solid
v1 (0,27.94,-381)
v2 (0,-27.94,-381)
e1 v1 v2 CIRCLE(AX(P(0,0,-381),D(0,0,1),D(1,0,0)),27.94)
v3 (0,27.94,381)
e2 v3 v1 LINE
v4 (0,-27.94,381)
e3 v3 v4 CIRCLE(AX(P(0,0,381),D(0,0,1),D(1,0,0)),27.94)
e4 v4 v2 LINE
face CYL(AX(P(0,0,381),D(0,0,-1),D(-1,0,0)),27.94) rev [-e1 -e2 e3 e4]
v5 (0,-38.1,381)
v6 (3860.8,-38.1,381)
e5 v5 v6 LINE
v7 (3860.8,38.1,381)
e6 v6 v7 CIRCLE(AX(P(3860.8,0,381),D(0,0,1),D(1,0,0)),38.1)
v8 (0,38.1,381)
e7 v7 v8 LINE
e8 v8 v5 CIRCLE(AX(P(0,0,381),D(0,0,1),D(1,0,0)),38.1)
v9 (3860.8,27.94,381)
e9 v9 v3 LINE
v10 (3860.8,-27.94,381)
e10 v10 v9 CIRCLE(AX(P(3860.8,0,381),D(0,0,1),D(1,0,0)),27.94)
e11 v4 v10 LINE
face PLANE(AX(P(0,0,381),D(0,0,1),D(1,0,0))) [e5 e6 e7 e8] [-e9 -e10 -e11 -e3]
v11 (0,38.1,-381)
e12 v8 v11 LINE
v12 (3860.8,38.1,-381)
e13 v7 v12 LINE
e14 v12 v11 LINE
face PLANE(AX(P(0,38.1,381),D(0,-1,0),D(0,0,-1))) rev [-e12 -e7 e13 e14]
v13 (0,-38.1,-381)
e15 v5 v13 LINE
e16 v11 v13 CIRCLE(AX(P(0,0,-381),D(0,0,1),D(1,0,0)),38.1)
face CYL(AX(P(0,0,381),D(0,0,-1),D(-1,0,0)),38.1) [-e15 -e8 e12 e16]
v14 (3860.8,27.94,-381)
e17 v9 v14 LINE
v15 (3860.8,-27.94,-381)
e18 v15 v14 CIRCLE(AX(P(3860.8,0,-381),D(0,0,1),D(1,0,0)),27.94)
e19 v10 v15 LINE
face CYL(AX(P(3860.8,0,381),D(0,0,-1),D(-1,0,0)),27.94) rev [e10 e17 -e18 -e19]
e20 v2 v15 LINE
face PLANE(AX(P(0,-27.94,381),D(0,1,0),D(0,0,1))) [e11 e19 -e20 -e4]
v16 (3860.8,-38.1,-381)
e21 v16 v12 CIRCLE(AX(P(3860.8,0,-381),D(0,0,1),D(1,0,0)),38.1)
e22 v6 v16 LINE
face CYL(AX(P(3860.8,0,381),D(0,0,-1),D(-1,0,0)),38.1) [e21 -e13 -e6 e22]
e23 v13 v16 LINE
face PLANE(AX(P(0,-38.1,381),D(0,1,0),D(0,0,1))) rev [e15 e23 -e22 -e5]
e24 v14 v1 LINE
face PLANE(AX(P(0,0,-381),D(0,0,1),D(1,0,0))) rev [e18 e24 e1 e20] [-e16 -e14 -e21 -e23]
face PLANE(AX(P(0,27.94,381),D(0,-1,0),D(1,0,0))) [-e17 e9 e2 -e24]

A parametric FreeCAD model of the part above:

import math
import FreeCAD as App
import Part
import Sketcher

V = App.Vector
Q = App.Units.Quantity

doc = App.newDocument("Part")
body = doc.addObject("PartDesign::Body", "Body")

# Sketch on XY plane
sketch1 = body.newObject("Sketcher::SketchObject", "Sketch")
sketch1.AttachmentSupport = (doc.getObject("XY_Plane"), [""])
sketch1.MapMode = "FlatFace"
sketch1.addGeometry([
    Part.LineSegment(V(3861, 38, 0), V(0, 38, 0)),  # 0
    Part.ArcOfCircle(Part.Circle(V(0, 0, 0), V(0, 0, 1), 38), math.radians(90), math.radians(270)),  # 1
    Part.LineSegment(V(0, -38, 0), V(3861, -38, 0)),  # 2
    Part.ArcOfCircle(Part.Circle(V(3861, 0, 0), V(0, 0, 1), 38), math.radians(-90), math.radians(90)),  # 3
    Part.LineSegment(V(0, 28, 0), V(3861, 28, 0)),  # 4
    Part.ArcOfCircle(Part.Circle(V(3861, 0, 0), V(0, 0, 1), 28), math.radians(-90), math.radians(90)),  # 5
    Part.LineSegment(V(3861, -28, 0), V(0, -28, 0)),  # 6
    Part.ArcOfCircle(Part.Circle(V(0, 0, 0), V(0, 0, 1), 28), math.radians(90), math.radians(270)),  # 7
], False)
sketch1.addConstraint([
    Sketcher.Constraint("Tangent", 0, 2, 1, 1),
    Sketcher.Constraint("Tangent", 1, 2, 2, 1),
    Sketcher.Constraint("Tangent", 2, 2, 3, 1),
    Sketcher.Constraint("Tangent", 3, 2, 0, 1),
    Sketcher.Constraint("Tangent", 4, 2, 5, 2),
    Sketcher.Constraint("Tangent", 5, 1, 6, 1),
    Sketcher.Constraint("Tangent", 6, 2, 7, 2),
    Sketcher.Constraint("Tangent", 7, 1, 4, 1),
    Sketcher.Constraint("Horizontal", 0),
    Sketcher.Constraint("Horizontal", 2),
    Sketcher.Constraint("Horizontal", 4),
    Sketcher.Constraint("Horizontal", 6),
    Sketcher.Constraint("Coincident", 1, 3, -1, 1),
    Sketcher.Constraint("Coincident", 7, 3, -1, 1),
    Sketcher.Constraint("Vertical", 5, 3, 2, 2),
    Sketcher.Constraint("Radius", 1, Q("1.5 in")),
    Sketcher.Constraint("Radius", 5, Q("1.1 in")),
    Sketcher.Constraint("DistanceX", 0, 2, 0, 1, Q("152 in")),
])
pad1 = body.newObject("PartDesign::Pad", "Pad")
pad1.Profile = sketch1
pad1.Length = Q("30 in")
pad1.Midplane = True

doc.recompute()
